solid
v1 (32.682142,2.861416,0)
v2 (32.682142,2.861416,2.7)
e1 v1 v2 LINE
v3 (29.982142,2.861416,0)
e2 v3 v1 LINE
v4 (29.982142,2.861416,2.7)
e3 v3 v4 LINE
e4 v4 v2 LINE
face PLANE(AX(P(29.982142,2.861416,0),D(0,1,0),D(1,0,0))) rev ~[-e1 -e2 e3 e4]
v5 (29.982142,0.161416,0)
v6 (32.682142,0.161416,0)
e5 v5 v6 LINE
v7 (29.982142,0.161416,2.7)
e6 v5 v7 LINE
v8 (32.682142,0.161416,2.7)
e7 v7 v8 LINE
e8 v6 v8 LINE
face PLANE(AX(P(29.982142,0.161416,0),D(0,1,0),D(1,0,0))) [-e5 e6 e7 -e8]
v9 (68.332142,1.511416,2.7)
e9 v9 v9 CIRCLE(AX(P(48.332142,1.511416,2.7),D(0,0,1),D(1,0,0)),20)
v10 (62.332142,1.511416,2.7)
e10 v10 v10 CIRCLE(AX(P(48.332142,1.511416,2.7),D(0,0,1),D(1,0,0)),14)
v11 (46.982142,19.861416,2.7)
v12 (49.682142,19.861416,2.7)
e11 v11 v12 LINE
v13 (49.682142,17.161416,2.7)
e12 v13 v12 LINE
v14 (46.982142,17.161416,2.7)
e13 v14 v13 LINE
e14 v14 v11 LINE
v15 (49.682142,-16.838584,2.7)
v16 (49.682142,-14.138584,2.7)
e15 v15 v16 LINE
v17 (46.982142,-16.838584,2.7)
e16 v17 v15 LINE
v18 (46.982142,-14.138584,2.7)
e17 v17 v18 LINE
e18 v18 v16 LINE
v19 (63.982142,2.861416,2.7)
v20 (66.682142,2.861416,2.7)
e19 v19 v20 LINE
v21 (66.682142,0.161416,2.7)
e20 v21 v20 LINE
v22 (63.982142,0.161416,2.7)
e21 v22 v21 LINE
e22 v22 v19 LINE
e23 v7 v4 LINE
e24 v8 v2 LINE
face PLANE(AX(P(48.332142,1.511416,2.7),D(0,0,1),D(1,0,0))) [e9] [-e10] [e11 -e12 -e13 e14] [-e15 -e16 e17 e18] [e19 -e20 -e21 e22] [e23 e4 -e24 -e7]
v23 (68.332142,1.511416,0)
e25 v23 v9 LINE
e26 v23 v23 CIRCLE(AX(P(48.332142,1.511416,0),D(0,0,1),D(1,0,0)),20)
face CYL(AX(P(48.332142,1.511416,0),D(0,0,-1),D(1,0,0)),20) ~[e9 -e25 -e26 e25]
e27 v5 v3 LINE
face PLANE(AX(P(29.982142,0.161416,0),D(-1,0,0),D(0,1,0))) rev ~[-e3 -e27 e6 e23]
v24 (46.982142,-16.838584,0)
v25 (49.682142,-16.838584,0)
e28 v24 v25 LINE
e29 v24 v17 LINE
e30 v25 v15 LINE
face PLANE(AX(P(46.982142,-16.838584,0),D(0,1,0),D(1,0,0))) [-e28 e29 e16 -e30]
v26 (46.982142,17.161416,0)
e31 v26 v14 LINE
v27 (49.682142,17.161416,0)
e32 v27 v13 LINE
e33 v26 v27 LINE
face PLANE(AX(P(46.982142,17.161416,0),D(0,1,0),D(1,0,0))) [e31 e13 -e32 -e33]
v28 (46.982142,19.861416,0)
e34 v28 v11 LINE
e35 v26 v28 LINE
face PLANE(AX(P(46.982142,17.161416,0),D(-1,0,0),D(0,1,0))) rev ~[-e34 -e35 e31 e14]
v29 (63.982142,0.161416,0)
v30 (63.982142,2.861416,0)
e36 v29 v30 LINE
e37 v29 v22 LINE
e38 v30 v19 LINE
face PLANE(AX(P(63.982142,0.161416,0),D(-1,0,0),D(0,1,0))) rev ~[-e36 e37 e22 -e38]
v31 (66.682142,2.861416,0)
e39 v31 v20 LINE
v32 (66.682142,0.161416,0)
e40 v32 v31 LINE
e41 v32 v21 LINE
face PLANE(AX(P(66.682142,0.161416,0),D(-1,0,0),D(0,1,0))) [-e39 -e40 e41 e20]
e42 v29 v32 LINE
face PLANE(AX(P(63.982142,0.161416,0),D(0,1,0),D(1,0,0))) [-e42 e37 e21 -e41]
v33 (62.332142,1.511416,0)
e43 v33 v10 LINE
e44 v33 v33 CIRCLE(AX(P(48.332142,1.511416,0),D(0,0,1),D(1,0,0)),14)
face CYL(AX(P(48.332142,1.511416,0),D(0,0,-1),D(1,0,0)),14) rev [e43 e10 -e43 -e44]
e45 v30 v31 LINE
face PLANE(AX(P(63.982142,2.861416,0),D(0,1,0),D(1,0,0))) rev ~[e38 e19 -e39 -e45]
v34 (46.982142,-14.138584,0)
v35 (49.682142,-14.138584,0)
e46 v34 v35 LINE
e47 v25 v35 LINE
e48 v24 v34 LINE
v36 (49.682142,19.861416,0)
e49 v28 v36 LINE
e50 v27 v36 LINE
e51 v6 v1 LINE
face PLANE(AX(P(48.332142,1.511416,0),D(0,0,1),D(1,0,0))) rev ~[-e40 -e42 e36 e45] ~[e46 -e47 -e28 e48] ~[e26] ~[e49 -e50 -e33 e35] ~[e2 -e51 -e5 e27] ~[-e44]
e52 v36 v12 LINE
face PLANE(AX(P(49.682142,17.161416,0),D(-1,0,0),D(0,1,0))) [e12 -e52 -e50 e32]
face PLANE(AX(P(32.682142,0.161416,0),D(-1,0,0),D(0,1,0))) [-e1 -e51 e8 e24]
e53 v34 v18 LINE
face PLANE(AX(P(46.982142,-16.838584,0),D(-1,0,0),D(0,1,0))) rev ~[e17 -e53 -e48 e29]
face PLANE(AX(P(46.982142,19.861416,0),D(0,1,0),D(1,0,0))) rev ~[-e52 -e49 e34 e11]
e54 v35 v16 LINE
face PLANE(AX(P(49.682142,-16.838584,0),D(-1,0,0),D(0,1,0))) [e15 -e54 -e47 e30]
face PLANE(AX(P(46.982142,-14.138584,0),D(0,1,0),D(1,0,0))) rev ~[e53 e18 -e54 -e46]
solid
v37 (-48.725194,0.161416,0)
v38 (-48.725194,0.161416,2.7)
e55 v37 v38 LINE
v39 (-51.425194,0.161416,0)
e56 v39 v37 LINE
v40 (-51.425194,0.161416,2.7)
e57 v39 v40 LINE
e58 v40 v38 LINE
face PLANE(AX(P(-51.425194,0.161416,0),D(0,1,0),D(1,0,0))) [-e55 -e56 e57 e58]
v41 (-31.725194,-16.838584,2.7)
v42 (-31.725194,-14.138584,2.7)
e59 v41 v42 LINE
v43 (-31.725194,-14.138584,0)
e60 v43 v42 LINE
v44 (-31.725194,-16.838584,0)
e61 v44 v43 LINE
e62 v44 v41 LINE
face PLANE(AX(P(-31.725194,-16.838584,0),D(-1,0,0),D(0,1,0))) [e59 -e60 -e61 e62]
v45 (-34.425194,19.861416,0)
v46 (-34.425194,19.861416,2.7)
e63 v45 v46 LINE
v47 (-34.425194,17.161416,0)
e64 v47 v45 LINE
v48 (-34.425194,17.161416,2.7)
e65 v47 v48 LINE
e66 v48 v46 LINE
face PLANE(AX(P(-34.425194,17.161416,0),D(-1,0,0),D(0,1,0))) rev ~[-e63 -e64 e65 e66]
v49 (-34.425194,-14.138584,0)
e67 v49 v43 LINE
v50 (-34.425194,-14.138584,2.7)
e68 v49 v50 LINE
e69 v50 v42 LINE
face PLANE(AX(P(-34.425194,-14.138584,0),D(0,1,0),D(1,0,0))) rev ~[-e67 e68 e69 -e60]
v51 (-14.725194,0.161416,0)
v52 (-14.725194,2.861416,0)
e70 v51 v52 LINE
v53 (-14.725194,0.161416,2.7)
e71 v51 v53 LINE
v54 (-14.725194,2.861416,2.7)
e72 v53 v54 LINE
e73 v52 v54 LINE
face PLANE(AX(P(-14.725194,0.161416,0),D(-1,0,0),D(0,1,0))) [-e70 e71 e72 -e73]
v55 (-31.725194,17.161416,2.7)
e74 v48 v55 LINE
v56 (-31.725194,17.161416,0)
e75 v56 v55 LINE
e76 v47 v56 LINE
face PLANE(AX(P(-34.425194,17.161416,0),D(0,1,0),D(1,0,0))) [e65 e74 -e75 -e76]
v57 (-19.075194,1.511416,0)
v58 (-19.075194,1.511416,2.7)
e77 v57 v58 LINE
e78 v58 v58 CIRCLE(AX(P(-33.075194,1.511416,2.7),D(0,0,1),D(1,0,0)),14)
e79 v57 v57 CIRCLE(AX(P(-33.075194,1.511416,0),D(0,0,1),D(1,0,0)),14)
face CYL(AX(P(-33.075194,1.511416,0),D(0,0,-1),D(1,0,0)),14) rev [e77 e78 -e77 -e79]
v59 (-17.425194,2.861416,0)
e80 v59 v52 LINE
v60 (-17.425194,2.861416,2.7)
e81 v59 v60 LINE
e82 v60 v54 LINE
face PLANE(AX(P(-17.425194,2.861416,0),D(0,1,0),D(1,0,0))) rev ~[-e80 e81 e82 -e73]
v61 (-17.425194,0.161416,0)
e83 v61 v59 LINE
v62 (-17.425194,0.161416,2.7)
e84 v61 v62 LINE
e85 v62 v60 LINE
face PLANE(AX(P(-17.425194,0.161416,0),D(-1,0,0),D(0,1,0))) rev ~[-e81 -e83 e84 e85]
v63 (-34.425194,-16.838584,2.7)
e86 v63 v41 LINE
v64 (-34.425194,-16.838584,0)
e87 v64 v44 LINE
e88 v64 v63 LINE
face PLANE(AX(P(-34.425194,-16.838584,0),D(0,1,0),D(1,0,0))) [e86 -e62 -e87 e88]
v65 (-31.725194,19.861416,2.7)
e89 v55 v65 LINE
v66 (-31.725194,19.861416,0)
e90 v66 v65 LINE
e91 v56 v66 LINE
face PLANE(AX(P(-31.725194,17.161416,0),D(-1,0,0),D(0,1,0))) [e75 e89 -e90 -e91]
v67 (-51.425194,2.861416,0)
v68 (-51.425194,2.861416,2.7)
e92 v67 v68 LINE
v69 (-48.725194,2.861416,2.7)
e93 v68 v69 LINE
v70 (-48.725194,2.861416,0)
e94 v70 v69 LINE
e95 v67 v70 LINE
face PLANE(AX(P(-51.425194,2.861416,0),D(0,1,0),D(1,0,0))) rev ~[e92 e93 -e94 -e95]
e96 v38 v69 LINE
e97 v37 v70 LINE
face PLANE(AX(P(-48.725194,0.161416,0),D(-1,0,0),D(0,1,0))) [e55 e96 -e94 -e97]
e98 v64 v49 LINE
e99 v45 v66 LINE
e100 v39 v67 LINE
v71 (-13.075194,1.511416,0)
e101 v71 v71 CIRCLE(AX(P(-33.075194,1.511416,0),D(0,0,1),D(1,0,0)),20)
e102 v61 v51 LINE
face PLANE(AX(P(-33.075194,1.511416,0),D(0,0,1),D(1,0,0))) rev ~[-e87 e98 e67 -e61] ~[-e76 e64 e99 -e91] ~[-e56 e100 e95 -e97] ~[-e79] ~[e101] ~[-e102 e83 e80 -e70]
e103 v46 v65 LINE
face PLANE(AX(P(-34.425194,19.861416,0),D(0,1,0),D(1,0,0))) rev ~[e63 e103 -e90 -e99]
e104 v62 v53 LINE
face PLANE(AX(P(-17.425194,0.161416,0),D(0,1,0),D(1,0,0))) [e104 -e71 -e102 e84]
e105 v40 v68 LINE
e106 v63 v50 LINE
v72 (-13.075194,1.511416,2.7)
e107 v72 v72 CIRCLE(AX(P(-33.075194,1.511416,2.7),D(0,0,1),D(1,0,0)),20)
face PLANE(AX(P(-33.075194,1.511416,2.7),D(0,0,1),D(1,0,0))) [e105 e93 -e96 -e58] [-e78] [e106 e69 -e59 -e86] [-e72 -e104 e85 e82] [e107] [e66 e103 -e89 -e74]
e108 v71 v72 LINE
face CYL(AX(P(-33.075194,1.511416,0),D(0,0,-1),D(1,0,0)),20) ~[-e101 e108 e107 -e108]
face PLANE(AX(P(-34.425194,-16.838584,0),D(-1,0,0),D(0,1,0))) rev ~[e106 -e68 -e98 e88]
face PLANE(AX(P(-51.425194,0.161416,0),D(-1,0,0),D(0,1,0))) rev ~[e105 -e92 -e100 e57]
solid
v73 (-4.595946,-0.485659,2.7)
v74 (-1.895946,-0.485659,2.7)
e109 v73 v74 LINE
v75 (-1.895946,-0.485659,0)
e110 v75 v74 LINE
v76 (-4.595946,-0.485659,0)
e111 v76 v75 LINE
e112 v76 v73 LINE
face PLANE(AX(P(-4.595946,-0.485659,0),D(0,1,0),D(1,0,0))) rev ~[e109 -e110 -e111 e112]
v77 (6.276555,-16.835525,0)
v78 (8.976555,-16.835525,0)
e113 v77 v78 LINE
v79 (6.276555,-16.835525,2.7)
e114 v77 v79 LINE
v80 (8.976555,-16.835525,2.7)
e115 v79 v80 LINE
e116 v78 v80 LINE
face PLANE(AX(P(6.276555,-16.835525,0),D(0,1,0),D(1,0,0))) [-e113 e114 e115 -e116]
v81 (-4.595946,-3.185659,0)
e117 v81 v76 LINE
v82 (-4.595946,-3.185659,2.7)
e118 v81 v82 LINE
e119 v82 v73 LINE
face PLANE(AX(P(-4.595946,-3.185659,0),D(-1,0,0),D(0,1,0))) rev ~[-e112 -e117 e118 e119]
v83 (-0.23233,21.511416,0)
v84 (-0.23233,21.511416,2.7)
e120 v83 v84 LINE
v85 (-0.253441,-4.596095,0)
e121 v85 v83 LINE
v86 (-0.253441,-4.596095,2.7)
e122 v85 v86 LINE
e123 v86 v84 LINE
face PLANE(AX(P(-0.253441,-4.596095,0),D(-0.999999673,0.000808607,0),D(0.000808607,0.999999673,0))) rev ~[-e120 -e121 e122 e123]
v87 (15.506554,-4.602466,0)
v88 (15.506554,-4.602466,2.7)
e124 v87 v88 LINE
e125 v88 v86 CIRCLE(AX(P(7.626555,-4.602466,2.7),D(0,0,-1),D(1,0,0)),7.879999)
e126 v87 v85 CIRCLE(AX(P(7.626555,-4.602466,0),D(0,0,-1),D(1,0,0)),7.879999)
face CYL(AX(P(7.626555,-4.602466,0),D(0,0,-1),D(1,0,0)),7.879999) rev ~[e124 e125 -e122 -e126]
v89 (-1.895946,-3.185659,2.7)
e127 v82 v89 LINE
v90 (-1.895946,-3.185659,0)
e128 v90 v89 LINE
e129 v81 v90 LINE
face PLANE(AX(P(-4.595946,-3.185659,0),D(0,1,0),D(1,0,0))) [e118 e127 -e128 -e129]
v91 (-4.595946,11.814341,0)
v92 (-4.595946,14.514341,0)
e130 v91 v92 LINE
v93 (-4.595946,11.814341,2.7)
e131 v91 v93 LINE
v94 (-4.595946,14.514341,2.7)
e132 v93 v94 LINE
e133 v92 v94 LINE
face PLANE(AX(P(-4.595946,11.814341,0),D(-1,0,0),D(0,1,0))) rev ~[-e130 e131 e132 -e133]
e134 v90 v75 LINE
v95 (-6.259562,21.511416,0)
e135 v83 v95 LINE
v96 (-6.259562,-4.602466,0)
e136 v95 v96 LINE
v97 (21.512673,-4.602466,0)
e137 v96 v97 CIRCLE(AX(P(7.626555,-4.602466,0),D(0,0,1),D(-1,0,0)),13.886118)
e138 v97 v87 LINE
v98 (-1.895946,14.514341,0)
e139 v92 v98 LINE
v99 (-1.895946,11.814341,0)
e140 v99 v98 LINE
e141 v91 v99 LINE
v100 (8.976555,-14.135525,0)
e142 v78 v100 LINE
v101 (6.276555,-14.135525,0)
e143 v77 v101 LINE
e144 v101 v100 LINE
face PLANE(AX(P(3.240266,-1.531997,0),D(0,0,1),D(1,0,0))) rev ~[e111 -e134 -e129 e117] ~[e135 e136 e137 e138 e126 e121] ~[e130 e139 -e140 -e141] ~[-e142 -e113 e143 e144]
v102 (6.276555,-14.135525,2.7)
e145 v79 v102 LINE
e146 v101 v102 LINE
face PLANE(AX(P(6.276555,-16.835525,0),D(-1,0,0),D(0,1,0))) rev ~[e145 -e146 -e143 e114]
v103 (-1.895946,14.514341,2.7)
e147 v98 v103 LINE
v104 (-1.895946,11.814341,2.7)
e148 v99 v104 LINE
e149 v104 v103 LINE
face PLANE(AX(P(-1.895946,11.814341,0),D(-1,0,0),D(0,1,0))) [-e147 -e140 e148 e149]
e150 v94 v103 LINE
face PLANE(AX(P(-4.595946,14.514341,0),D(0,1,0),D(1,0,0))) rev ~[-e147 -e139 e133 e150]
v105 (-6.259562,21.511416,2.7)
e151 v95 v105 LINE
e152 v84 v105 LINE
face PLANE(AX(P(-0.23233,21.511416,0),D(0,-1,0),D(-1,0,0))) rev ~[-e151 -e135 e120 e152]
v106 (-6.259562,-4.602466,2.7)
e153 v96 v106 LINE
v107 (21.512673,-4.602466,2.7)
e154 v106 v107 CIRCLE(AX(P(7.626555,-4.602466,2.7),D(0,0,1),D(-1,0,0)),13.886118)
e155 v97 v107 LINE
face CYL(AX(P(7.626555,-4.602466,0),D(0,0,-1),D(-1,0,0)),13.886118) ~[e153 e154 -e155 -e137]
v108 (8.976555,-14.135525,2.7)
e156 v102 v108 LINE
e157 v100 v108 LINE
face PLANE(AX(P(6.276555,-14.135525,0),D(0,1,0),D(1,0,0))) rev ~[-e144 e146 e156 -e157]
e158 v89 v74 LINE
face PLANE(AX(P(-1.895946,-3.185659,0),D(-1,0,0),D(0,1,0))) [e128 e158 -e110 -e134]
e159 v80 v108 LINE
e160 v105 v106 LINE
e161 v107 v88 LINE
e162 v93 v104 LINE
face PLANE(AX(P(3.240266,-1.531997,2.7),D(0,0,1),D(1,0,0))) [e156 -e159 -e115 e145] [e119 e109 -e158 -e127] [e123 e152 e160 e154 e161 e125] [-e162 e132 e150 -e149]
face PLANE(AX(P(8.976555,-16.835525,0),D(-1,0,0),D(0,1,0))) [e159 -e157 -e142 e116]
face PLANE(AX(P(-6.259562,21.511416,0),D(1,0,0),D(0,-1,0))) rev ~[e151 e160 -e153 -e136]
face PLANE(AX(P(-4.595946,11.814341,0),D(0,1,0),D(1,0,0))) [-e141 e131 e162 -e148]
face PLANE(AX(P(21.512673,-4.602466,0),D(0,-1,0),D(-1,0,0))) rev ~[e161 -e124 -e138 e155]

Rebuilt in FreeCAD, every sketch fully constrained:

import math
import FreeCAD as App
import Part
import Sketcher

V = App.Vector
Q = App.Units.Quantity


def add_polygon(sketch, points):
    """Adds a closed chain of lines whose ends are joined by coincident constraints."""
    first, n = sketch.GeometryCount, len(points)
    for a, b in zip(points, points[1:] + points[:1]):
        sketch.addGeometry(Part.LineSegment(App.Vector(*a, 0), App.Vector(*b, 0)), False)
    for i in range(n):
        sketch.addConstraint(Sketcher.Constraint("Coincident", first + i, 2, first + (i + 1) % n, 1))

doc = App.newDocument("Part")
body = doc.addObject("PartDesign::Body", "Body")

sketch1 = body.newObject("Sketcher::SketchObject", "Sketch")
sketch1.AttachmentSupport = (doc.getObject("XY_Plane"), [""])
sketch1.MapMode = "FlatFace"
sketch1.addGeometry(Part.Circle(V(48.3, 1.5, 0), V(0, 0, 1), 20), False)
add_polygon(sketch1, [(49.7, -16.8), (47, -16.8), (47, -14.1), (49.7, -14.1)])
add_polygon(sketch1, [(32.7, 0.2), (30, 0.2), (30, 2.9), (32.7, 2.9)])
sketch1.addGeometry(Part.Circle(V(48.3, 1.5, 0), V(0, 0, 1), 14), False)
add_polygon(sketch1, [(66.7, 0.2), (64, 0.2), (64, 2.9), (66.7, 2.9)])
add_polygon(sketch1, [(49.7, 17.2), (47, 17.2), (47, 19.9), (49.7, 19.9)])
sketch1.addConstraint(Sketcher.Constraint("Horizontal", 1))
sketch1.addConstraint(Sketcher.Constraint("Vertical", 2))
sketch1.addConstraint(Sketcher.Constraint("Horizontal", 3))
sketch1.addConstraint(Sketcher.Constraint("Vertical", 4))
sketch1.addConstraint(Sketcher.Constraint("Horizontal", 5))
sketch1.addConstraint(Sketcher.Constraint("Vertical", 6))
sketch1.addConstraint(Sketcher.Constraint("Horizontal", 7))
sketch1.addConstraint(Sketcher.Constraint("Vertical", 8))
sketch1.addConstraint(Sketcher.Constraint("Horizontal", 10))
sketch1.addConstraint(Sketcher.Constraint("Vertical", 11))
sketch1.addConstraint(Sketcher.Constraint("Horizontal", 12))
sketch1.addConstraint(Sketcher.Constraint("Vertical", 13))
sketch1.addConstraint(Sketcher.Constraint("Horizontal", 14))
sketch1.addConstraint(Sketcher.Constraint("Vertical", 15))
sketch1.addConstraint(Sketcher.Constraint("Horizontal", 16))
sketch1.addConstraint(Sketcher.Constraint("Vertical", 17))
sketch1.addConstraint(Sketcher.Constraint("Coincident", 9, 3, 0, 3))
sketch1.addConstraint(Sketcher.Constraint("Horizontal", 8, 2, 10, 2))
sketch1.addConstraint(Sketcher.Constraint("Horizontal", 7, 2, 11, 2))
sketch1.addConstraint(Sketcher.Constraint("Vertical", 2, 2, 14, 2))
sketch1.addConstraint(Sketcher.Constraint("Vertical", 4, 2, 16, 2))
sketch1.addConstraint(Sketcher.Constraint("Equal", 3, 5))
sketch1.addConstraint(Sketcher.Constraint("Equal", 7, 10))
sketch1.addConstraint(Sketcher.Constraint("Equal", 16, 2))
sketch1.addConstraint(Sketcher.Constraint("Equal", 4, 6))
sketch1.addConstraint(Sketcher.Constraint("Equal", 13, 15))
sketch1.addConstraint(Sketcher.Constraint("Diameter", 0, Q("40 mm")))
sketch1.addConstraint(Sketcher.Constraint("Diameter", 9, Q("28 mm")))
sketch1.addConstraint(Sketcher.Constraint("DistanceX", 1, 2, 1, 1, Q("2.7 mm")))
sketch1.addConstraint(Sketcher.Constraint("DistanceX", 5, 2, 2, 2, Q("17 mm")))
sketch1.addConstraint(Sketcher.Constraint("DistanceY", 1, 2, 5, 2, Q("17 mm")))
sketch1.addConstraint(Sketcher.Constraint("DistanceX", 2, 2, 10, 2, Q("17 mm")))
sketch1.addConstraint(Sketcher.Constraint("DistanceY", 7, 2, 15, 2, Q("17 mm")))
sketch1.addConstraint(Sketcher.Constraint("DistanceX", 1, 2, 0, 3, Q("1.35 mm")))
sketch1.addConstraint(Sketcher.Constraint("DistanceY", 1, 2, 0, 3, Q("18.35 mm")))
sketch1.addConstraint(Sketcher.Constraint("DistanceX", -1, 1, 0, 3, Q("48.332142 mm")))
sketch1.addConstraint(Sketcher.Constraint("DistanceY", -1, 1, 0, 3, Q("1.511416 mm")))
pad1 = body.newObject("PartDesign::Pad", "Pad")
pad1.Profile = sketch1
pad1.Length = 2.7
body2 = doc.addObject("PartDesign::Body", "Body001")

sketch2 = body2.newObject("Sketcher::SketchObject", "Sketch001")
sketch2.AttachmentSupport = (doc.getObject("XY_Plane001"), [""])
sketch2.MapMode = "FlatFace"
sketch2.addGeometry(Part.Circle(V(-33.1, 1.5, 0), V(0, 0, 1), 20), False)
add_polygon(sketch2, [(-31.7, -16.8), (-34.4, -16.8), (-34.4, -14.1), (-31.7, -14.1)])
add_polygon(sketch2, [(-48.7, 0.2), (-51.4, 0.2), (-51.4, 2.9), (-48.7, 2.9)])
sketch2.addGeometry(Part.Circle(V(-33.1, 1.5, 0), V(0, 0, 1), 14), False)
add_polygon(sketch2, [(-14.7, 0.2), (-17.4, 0.2), (-17.4, 2.9), (-14.7, 2.9)])
add_polygon(sketch2, [(-31.7, 17.2), (-34.4, 17.2), (-34.4, 19.9), (-31.7, 19.9)])
sketch2.addConstraint(Sketcher.Constraint("Horizontal", 1))
sketch2.addConstraint(Sketcher.Constraint("Vertical", 2))
sketch2.addConstraint(Sketcher.Constraint("Horizontal", 3))
sketch2.addConstraint(Sketcher.Constraint("Vertical", 4))
sketch2.addConstraint(Sketcher.Constraint("Horizontal", 5))
sketch2.addConstraint(Sketcher.Constraint("Vertical", 6))
sketch2.addConstraint(Sketcher.Constraint("Horizontal", 7))
sketch2.addConstraint(Sketcher.Constraint("Vertical", 8))
sketch2.addConstraint(Sketcher.Constraint("Horizontal", 10))
sketch2.addConstraint(Sketcher.Constraint("Vertical", 11))
sketch2.addConstraint(Sketcher.Constraint("Horizontal", 12))
sketch2.addConstraint(Sketcher.Constraint("Vertical", 13))
sketch2.addConstraint(Sketcher.Constraint("Horizontal", 14))
sketch2.addConstraint(Sketcher.Constraint("Vertical", 15))
sketch2.addConstraint(Sketcher.Constraint("Horizontal", 16))
sketch2.addConstraint(Sketcher.Constraint("Vertical", 17))
sketch2.addConstraint(Sketcher.Constraint("Coincident", 9, 3, 0, 3))
sketch2.addConstraint(Sketcher.Constraint("Horizontal", 8, 2, 10, 2))
sketch2.addConstraint(Sketcher.Constraint("Horizontal", 7, 2, 11, 2))
sketch2.addConstraint(Sketcher.Constraint("Vertical", 2, 2, 14, 2))
sketch2.addConstraint(Sketcher.Constraint("Vertical", 4, 2, 16, 2))
sketch2.addConstraint(Sketcher.Constraint("Equal", 3, 5))
sketch2.addConstraint(Sketcher.Constraint("Equal", 7, 10))
sketch2.addConstraint(Sketcher.Constraint("Equal", 16, 2))
sketch2.addConstraint(Sketcher.Constraint("Equal", 4, 6))
sketch2.addConstraint(Sketcher.Constraint("Equal", 13, 15))
sketch2.addConstraint(Sketcher.Constraint("Diameter", 0, Q("40 mm")))
sketch2.addConstraint(Sketcher.Constraint("Diameter", 9, Q("28 mm")))
sketch2.addConstraint(Sketcher.Constraint("DistanceX", 1, 2, 1, 1, Q("2.7 mm")))
sketch2.addConstraint(Sketcher.Constraint("DistanceX", 5, 2, 2, 2, Q("17 mm")))
sketch2.addConstraint(Sketcher.Constraint("DistanceY", 1, 2, 5, 2, Q("17 mm")))
sketch2.addConstraint(Sketcher.Constraint("DistanceX", 2, 2, 10, 2, Q("17 mm")))
sketch2.addConstraint(Sketcher.Constraint("DistanceY", 8, 2, 14, 2, Q("17 mm")))
sketch2.addConstraint(Sketcher.Constraint("DistanceX", 1, 2, 0, 3, Q("1.35 mm")))
sketch2.addConstraint(Sketcher.Constraint("DistanceY", 1, 2, 0, 3, Q("18.35 mm")))
sketch2.addConstraint(Sketcher.Constraint("DistanceX", 0, 3, -1, 1, Q("33.075194 mm")))
sketch2.addConstraint(Sketcher.Constraint("DistanceY", -1, 1, 0, 3, Q("1.511416 mm")))
pad2 = body2.newObject("PartDesign::Pad", "Pad001")
pad2.Profile = sketch2
pad2.Length = 2.7
body3 = doc.addObject("PartDesign::Body", "Body002")

sketch3 = body3.newObject("Sketcher::SketchObject", "Sketch002")
sketch3.AttachmentSupport = (doc.getObject("XY_Plane002"), [""])
sketch3.MapMode = "FlatFace"
sketch3.addGeometry(Part.LineSegment(V(21.5, -4.6, 0), V(15.5, -4.6, 0)), False)
sketch3.addGeometry(Part.ArcOfCircle(Part.Circle(V(7.6, -4.6, 0), V(0, 0, 1), 7.9), math.radians(180), math.radians(360)), False)
sketch3.addGeometry(Part.LineSegment(V(-0.3, -4.6, 0), V(-0.2, 21.5, 0)), False)
sketch3.addGeometry(Part.LineSegment(V(-0.2, 21.5, 0), V(-6.3, 21.5, 0)), False)
sketch3.addGeometry(Part.LineSegment(V(-6.3, 21.5, 0), V(-6.3, -4.6, 0)), False)
sketch3.addGeometry(Part.ArcOfCircle(Part.Circle(V(7.6, -4.6, 0), V(0, 0, 1), 13.9), math.radians(180), math.radians(360)), False)
add_polygon(sketch3, [(-1.9, -3.2), (-4.6, -3.2), (-4.6, -0.5), (-1.9, -0.5)])
add_polygon(sketch3, [(9, -16.8), (6.3, -16.8), (6.3, -14.1), (9, -14.1)])
add_polygon(sketch3, [(-1.9, 11.8), (-4.6, 11.8), (-4.6, 14.5), (-1.9, 14.5)])
sketch3.addConstraint(Sketcher.Constraint("Coincident", 0, 2, 1, 2))
sketch3.addConstraint(Sketcher.Constraint("Tangent", 1, 1, 2, 1))
sketch3.addConstraint(Sketcher.Constraint("Coincident", 2, 2, 3, 1))
sketch3.addConstraint(Sketcher.Constraint("Coincident", 3, 2, 4, 1))
sketch3.addConstraint(Sketcher.Constraint("Tangent", 4, 2, 5, 1))
sketch3.addConstraint(Sketcher.Constraint("Coincident", 5, 2, 0, 1))
sketch3.addConstraint(Sketcher.Constraint("Horizontal", 0))
sketch3.addConstraint(Sketcher.Constraint("Horizontal", 3))
sketch3.addConstraint(Sketcher.Constraint("Vertical", 4))
sketch3.addConstraint(Sketcher.Constraint("Horizontal", 6))
sketch3.addConstraint(Sketcher.Constraint("Vertical", 7))
sketch3.addConstraint(Sketcher.Constraint("Horizontal", 8))
sketch3.addConstraint(Sketcher.Constraint("Vertical", 9))
sketch3.addConstraint(Sketcher.Constraint("Horizontal", 10))
sketch3.addConstraint(Sketcher.Constraint("Vertical", 11))
sketch3.addConstraint(Sketcher.Constraint("Horizontal", 12))
sketch3.addConstraint(Sketcher.Constraint("Vertical", 13))
sketch3.addConstraint(Sketcher.Constraint("Horizontal", 14))
sketch3.addConstraint(Sketcher.Constraint("Vertical", 15))
sketch3.addConstraint(Sketcher.Constraint("Horizontal", 16))
sketch3.addConstraint(Sketcher.Constraint("Vertical", 17))
sketch3.addConstraint(Sketcher.Constraint("Coincident", 5, 3, 1, 3))
sketch3.addConstraint(Sketcher.Constraint("Horizontal", 5, 3, 0, 2))
sketch3.addConstraint(Sketcher.Constraint("Vertical", 7, 2, 14, 2))
sketch3.addConstraint(Sketcher.Constraint("Vertical", 9, 2, 16, 2))
sketch3.addConstraint(Sketcher.Constraint("Equal", 8, 10))
sketch3.addConstraint(Sketcher.Constraint("Equal", 16, 7))
sketch3.addConstraint(Sketcher.Constraint("Equal", 9, 11))
sketch3.addConstraint(Sketcher.Constraint("Equal", 13, 15))
sketch3.addConstraint(Sketcher.Constraint("Radius", 1, Q("7.879999 mm")))
sketch3.addConstraint(Sketcher.Constraint("DistanceX", 6, 2, 6, 1, Q("2.7 mm")))
sketch3.addConstraint(Sketcher.Constraint("DistanceY", 6, 2, 14, 2, Q("15 mm")))
sketch3.addConstraint(Sketcher.Constraint("DistanceX", 10, 2, 1, 3, Q("1.35 mm")))
sketch3.addConstraint(Sketcher.Constraint("Radius", 5, Q("13.886118 mm")))
sketch3.addConstraint(Sketcher.Constraint("DistanceX", 6, 2, 1, 3, Q("12.222502 mm")))
sketch3.addConstraint(Sketcher.Constraint("Distance", 2, Q("26.107519 mm")))
sketch3.addConstraint(Sketcher.Constraint("DistanceX", 3, 2, 3, 1, Q("6.027232 mm")))
sketch3.addConstraint(Sketcher.Constraint("DistanceX", 1, 1, -1, 1, Q("0.253441 mm")))
sketch3.addConstraint(Sketcher.Constraint("DistanceY", 6, 2, -1, 1, Q("3.185659 mm")))
sketch3.addConstraint(Sketcher.Constraint("DistanceY", 10, 2, 1, 3, Q("12.233058 mm")))
sketch3.addConstraint(Sketcher.Constraint("DistanceY", 1, 3, -1, 1, Q("4.602466 mm")))
pad3 = body3.newObject("PartDesign::Pad", "Pad002")
pad3.Profile = sketch3
pad3.Length = 2.7

doc.recompute()
